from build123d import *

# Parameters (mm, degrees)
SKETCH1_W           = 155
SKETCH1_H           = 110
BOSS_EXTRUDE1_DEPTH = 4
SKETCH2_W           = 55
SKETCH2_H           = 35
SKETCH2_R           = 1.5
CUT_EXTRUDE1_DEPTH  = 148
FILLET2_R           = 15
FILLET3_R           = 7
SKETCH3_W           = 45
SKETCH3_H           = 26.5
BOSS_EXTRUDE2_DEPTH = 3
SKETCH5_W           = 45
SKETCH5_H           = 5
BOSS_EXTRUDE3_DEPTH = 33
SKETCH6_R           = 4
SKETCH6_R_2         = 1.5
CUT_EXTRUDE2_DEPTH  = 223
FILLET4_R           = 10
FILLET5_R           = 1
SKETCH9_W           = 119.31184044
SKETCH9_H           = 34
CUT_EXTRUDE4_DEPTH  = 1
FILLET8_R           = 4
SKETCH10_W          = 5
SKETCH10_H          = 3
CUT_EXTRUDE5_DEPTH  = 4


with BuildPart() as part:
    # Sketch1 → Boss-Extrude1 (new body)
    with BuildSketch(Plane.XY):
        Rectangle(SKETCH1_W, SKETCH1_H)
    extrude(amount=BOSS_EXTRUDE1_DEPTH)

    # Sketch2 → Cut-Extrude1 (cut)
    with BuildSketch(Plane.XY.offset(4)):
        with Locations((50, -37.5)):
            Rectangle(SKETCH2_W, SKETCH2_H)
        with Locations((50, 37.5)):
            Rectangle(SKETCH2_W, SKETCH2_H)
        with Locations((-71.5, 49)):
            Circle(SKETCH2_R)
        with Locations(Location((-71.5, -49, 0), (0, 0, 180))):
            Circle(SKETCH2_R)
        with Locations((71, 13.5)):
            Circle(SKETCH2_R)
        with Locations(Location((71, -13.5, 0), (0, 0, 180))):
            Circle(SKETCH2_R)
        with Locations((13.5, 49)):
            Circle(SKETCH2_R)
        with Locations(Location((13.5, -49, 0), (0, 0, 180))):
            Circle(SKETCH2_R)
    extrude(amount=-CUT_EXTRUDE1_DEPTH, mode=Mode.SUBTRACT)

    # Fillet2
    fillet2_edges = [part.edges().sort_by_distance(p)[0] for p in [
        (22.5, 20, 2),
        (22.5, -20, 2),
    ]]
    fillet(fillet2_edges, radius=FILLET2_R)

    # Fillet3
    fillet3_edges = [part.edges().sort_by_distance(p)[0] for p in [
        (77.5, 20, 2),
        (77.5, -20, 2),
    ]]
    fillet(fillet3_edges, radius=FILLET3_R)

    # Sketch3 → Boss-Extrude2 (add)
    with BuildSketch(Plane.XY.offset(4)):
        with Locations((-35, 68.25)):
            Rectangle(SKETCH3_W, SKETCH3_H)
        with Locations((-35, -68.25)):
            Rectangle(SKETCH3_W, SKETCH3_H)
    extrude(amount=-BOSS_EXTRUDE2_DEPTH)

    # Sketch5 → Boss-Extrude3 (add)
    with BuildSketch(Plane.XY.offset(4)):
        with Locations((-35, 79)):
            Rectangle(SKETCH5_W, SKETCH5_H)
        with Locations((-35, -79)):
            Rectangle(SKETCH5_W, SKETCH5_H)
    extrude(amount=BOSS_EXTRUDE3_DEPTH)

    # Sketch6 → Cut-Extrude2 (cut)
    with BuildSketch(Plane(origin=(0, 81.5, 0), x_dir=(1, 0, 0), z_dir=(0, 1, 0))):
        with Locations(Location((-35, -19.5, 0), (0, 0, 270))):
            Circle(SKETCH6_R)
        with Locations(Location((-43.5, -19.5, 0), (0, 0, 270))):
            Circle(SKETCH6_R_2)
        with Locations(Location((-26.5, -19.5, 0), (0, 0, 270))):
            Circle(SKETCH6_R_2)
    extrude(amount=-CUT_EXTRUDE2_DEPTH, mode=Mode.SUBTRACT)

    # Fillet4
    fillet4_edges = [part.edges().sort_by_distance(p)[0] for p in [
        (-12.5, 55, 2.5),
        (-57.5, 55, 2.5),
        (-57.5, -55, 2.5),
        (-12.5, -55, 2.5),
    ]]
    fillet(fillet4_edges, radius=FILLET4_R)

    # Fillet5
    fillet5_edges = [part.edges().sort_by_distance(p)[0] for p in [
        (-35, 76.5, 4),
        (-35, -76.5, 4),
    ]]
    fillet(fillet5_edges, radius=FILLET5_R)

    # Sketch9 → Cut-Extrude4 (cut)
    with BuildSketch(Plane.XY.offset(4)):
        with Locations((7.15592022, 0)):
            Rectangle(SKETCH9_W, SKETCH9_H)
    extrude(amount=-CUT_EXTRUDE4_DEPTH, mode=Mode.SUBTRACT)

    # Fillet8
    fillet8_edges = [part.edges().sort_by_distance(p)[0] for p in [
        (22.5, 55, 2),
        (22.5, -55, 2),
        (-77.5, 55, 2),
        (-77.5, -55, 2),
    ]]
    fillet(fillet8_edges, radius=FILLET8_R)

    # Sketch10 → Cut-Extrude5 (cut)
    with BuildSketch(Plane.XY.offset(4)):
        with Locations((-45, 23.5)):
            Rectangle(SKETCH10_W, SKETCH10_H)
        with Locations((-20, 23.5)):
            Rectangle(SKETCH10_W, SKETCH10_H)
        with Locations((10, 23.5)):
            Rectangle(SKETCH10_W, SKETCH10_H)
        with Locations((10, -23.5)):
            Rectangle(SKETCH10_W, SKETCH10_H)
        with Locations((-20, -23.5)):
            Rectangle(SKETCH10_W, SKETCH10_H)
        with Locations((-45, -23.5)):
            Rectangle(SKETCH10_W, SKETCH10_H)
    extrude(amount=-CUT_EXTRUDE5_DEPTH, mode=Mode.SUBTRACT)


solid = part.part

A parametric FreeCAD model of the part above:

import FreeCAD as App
import Part
import Sketcher

V = App.Vector


def edges_at(feature, points):
    """Names of the edges that pass closest to the given points."""
    edges = feature.Shape.Edges
    near = lambda p: min(range(len(edges)), key=lambda i: edges[i].distToShape(Part.Vertex(*p))[0])
    return sorted({f"Edge{near(p) + 1}" for p in points})

doc = App.newDocument("Part")
body = doc.addObject("PartDesign::Body", "Body")

# Sketch on XY plane
sketch1 = body.newObject("Sketcher::SketchObject", "Sketch")
sketch1.AttachmentSupport = (doc.getObject("XY_Plane"), [""])
sketch1.MapMode = "FlatFace"
sketch1.addGeometry(Part.LineSegment(V(-78, 55, 0), V(-78, -55, 0)), False)
sketch1.addGeometry(Part.LineSegment(V(-78, -55, 0), V(78, -55, 0)), False)
sketch1.addGeometry(Part.LineSegment(V(78, -55, 0), V(78, 55, 0)), False)
sketch1.addGeometry(Part.LineSegment(V(78, 55, 0), V(-78, 55, 0)), False)
sketch1.addConstraint(Sketcher.Constraint("Coincident", 0, 2, 1, 1))
sketch1.addConstraint(Sketcher.Constraint("Coincident", 1, 2, 2, 1))
sketch1.addConstraint(Sketcher.Constraint("Coincident", 2, 2, 3, 1))
sketch1.addConstraint(Sketcher.Constraint("Coincident", 3, 2, 0, 1))
sketch1.addConstraint(Sketcher.Constraint("Vertical", 0))
sketch1.addConstraint(Sketcher.Constraint("Horizontal", 1))
sketch1.addConstraint(Sketcher.Constraint("Vertical", 2))
sketch1.addConstraint(Sketcher.Constraint("Horizontal", 3))
sketch1.addConstraint(Sketcher.Constraint("Symmetric", 0, 2, 2, 2, -1, 1))
sketch1.addConstraint(Sketcher.Constraint("DistanceX", 1, 1, 1, 2, 155.0))
sketch1.addConstraint(Sketcher.Constraint("DistanceY", 0, 2, 0, 1, 110.0))
pad1 = body.newObject("PartDesign::Pad", "Pad")
pad1.Profile = sketch1
pad1.Length = 4

# Sketch on XY plane
sketch2 = body.newObject("Sketcher::SketchObject", "Sketch001")
sketch2.AttachmentSupport = (doc.getObject("XY_Plane"), [""])
sketch2.MapMode = "FlatFace"
sketch2.AttachmentOffset = App.Placement(V(0, 0, 4), App.Rotation())
sketch2.addGeometry(Part.LineSegment(V(22.5, -20, 0), V(22.5, -55, 0)), False)
sketch2.addGeometry(Part.LineSegment(V(22.5, -55, 0), V(77.5, -55, 0)), False)
sketch2.addGeometry(Part.LineSegment(V(77.5, -55, 0), V(77.5, -20, 0)), False)
sketch2.addGeometry(Part.LineSegment(V(77.5, -20, 0), V(22.5, -20, 0)), False)
sketch2.addGeometry(Part.LineSegment(V(22.5, 55, 0), V(22.5, 20, 0)), False)
sketch2.addGeometry(Part.LineSegment(V(22.5, 20, 0), V(77.5, 20, 0)), False)
sketch2.addGeometry(Part.LineSegment(V(77.5, 20, 0), V(77.5, 55, 0)), False)
sketch2.addGeometry(Part.LineSegment(V(77.5, 55, 0), V(22.5, 55, 0)), False)
sketch2.addGeometry(Part.Circle(V(-71.5, 49, 0), V(0, 0, 1), 1.5), False)
sketch2.addGeometry(Part.Circle(V(-71.5, -49, 0), V(0, 0, 1), 1.5), False)
sketch2.addGeometry(Part.Circle(V(71, 13.5, 0), V(0, 0, 1), 1.5), False)
sketch2.addGeometry(Part.Circle(V(71, -13.5, 0), V(0, 0, 1), 1.5), False)
sketch2.addGeometry(Part.Circle(V(13.5, 49, 0), V(0, 0, 1), 1.5), False)
sketch2.addGeometry(Part.Circle(V(13.5, -49, 0), V(0, 0, 1), 1.5), False)
sketch2.addConstraint(Sketcher.Constraint("Coincident", 0, 2, 1, 1))
sketch2.addConstraint(Sketcher.Constraint("Coincident", 1, 2, 2, 1))
sketch2.addConstraint(Sketcher.Constraint("Coincident", 2, 2, 3, 1))
sketch2.addConstraint(Sketcher.Constraint("Coincident", 3, 2, 0, 1))
sketch2.addConstraint(Sketcher.Constraint("Coincident", 4, 2, 5, 1))
sketch2.addConstraint(Sketcher.Constraint("Coincident", 5, 2, 6, 1))
sketch2.addConstraint(Sketcher.Constraint("Coincident", 6, 2, 7, 1))
sketch2.addConstraint(Sketcher.Constraint("Coincident", 7, 2, 4, 1))
sketch2.addConstraint(Sketcher.Constraint("Vertical", 0))
sketch2.addConstraint(Sketcher.Constraint("Horizontal", 1))
sketch2.addConstraint(Sketcher.Constraint("Vertical", 2))
sketch2.addConstraint(Sketcher.Constraint("Horizontal", 3))
sketch2.addConstraint(Sketcher.Constraint("Vertical", 4))
sketch2.addConstraint(Sketcher.Constraint("Horizontal", 5))
sketch2.addConstraint(Sketcher.Constraint("Vertical", 6))
sketch2.addConstraint(Sketcher.Constraint("Horizontal", 7))
sketch2.addConstraint(Sketcher.Constraint("Equal", 8, 9))
sketch2.addConstraint(Sketcher.Constraint("Equal", 9, 10))
sketch2.addConstraint(Sketcher.Constraint("Equal", 10, 11))
sketch2.addConstraint(Sketcher.Constraint("Equal", 11, 12))
sketch2.addConstraint(Sketcher.Constraint("Equal", 12, 13))
sketch2.addConstraint(Sketcher.Constraint("Symmetric", 8, 3, 9, 3, -1))
sketch2.addConstraint(Sketcher.Constraint("Symmetric", 10, 3, 11, 3, -1))
sketch2.addConstraint(Sketcher.Constraint("Symmetric", 12, 3, 13, 3, -1))
sketch2.addConstraint(Sketcher.Constraint("Symmetric", 3, 2, 4, 2, -1))
sketch2.addConstraint(Sketcher.Constraint("Symmetric", 1, 2, 6, 2, -1))
sketch2.addConstraint(Sketcher.Constraint("Horizontal", 8, 3, 12, 3))
sketch2.addConstraint(Sketcher.Constraint("Diameter", 8, 3.0))
sketch2.addConstraint(Sketcher.Constraint("DistanceX", 1, 1, 1, 2, 55.0))
sketch2.addConstraint(Sketcher.Constraint("DistanceY", 0, 2, 0, 1, 35.0))
sketch2.addConstraint(Sketcher.Constraint("DistanceY", -1, 1, 8, 3, 49.0))
sketch2.addConstraint(Sketcher.Constraint("DistanceX", -1, 1, 10, 3, 71.0))
sketch2.addConstraint(Sketcher.Constraint("DistanceY", 0, 2, -1, 1, 55.0))
sketch2.addConstraint(Sketcher.Constraint("DistanceY", 11, 3, 10, 3, 27.0))
sketch2.addConstraint(Sketcher.Constraint("DistanceX", 8, 3, 12, 3, 85.0))
sketch2.addConstraint(Sketcher.Constraint("DistanceX", 13, 3, 0, 2, 9.0))
sketch2.addConstraint(Sketcher.Constraint("DistanceX", 8, 3, -1, 1, 71.5))
pocket1 = body.newObject("PartDesign::Pocket", "Pocket")
pocket1.Profile = sketch2
pocket1.Length = 148
doc.recompute()

fillet = body.newObject("PartDesign::Fillet", "Fillet")
fillet.Base = (pocket1, edges_at(pocket1, [(22.5, 20, 2), (22.5, -20, 2)]))
fillet.Radius = 15
doc.recompute()

fillet2 = body.newObject("PartDesign::Fillet", "Fillet001")
fillet2.Base = (fillet, edges_at(fillet, [(77.5, 20, 2), (77.5, -20, 2)]))
fillet2.Radius = 7

# Sketch on XY plane
sketch3 = body.newObject("Sketcher::SketchObject", "Sketch002")
sketch3.AttachmentSupport = (doc.getObject("XY_Plane"), [""])
sketch3.MapMode = "FlatFace"
sketch3.AttachmentOffset = App.Placement(V(0, 0, 4), App.Rotation())
sketch3.addGeometry(Part.LineSegment(V(-58, 82, 0), V(-58, 55, 0)), False)
sketch3.addGeometry(Part.LineSegment(V(-58, 55, 0), V(-12, 55, 0)), False)
sketch3.addGeometry(Part.LineSegment(V(-12, 55, 0), V(-12, 82, 0)), False)
sketch3.addGeometry(Part.LineSegment(V(-12, 82, 0), V(-58, 82, 0)), False)
sketch3.addGeometry(Part.LineSegment(V(-58, -55, 0), V(-58, -82, 0)), False)
sketch3.addGeometry(Part.LineSegment(V(-58, -82, 0), V(-12, -82, 0)), False)
sketch3.addGeometry(Part.LineSegment(V(-12, -82, 0), V(-12, -55, 0)), False)
sketch3.addGeometry(Part.LineSegment(V(-12, -55, 0), V(-58, -55, 0)), False)
sketch3.addConstraint(Sketcher.Constraint("Coincident", 0, 2, 1, 1))
sketch3.addConstraint(Sketcher.Constraint("Coincident", 1, 2, 2, 1))
sketch3.addConstraint(Sketcher.Constraint("Coincident", 2, 2, 3, 1))
sketch3.addConstraint(Sketcher.Constraint("Coincident", 3, 2, 0, 1))
sketch3.addConstraint(Sketcher.Constraint("Coincident", 4, 2, 5, 1))
sketch3.addConstraint(Sketcher.Constraint("Coincident", 5, 2, 6, 1))
sketch3.addConstraint(Sketcher.Constraint("Coincident", 6, 2, 7, 1))
sketch3.addConstraint(Sketcher.Constraint("Coincident", 7, 2, 4, 1))
sketch3.addConstraint(Sketcher.Constraint("Vertical", 0))
sketch3.addConstraint(Sketcher.Constraint("Horizontal", 1))
sketch3.addConstraint(Sketcher.Constraint("Vertical", 2))
sketch3.addConstraint(Sketcher.Constraint("Horizontal", 3))
sketch3.addConstraint(Sketcher.Constraint("Vertical", 4))
sketch3.addConstraint(Sketcher.Constraint("Horizontal", 5))
sketch3.addConstraint(Sketcher.Constraint("Vertical", 6))
sketch3.addConstraint(Sketcher.Constraint("Horizontal", 7))
sketch3.addConstraint(Sketcher.Constraint("Symmetric", 3, 2, 4, 2, -1))
sketch3.addConstraint(Sketcher.Constraint("Symmetric", 1, 2, 6, 2, -1))
sketch3.addConstraint(Sketcher.Constraint("DistanceX", 1, 1, 1, 2, 45.0))
sketch3.addConstraint(Sketcher.Constraint("DistanceY", 0, 2, 0, 1, 26.5))
sketch3.addConstraint(Sketcher.Constraint("DistanceY", -1, 1, 0, 2, 55.0))
sketch3.addConstraint(Sketcher.Constraint("DistanceX", 0, 2, -1, 1, 57.5))
pad2 = body.newObject("PartDesign::Pad", "Pad001")
pad2.Profile = sketch3
pad2.Length = 3
pad2.Reversed = True

# Sketch on XY plane
sketch4 = body.newObject("Sketcher::SketchObject", "Sketch003")
sketch4.AttachmentSupport = (doc.getObject("XY_Plane"), [""])
sketch4.MapMode = "FlatFace"
sketch4.AttachmentOffset = App.Placement(V(0, 0, 4), App.Rotation())
sketch4.addGeometry(Part.LineSegment(V(-58, 82, 0), V(-58, 76, 0)), False)
sketch4.addGeometry(Part.LineSegment(V(-58, 76, 0), V(-12, 76, 0)), False)
sketch4.addGeometry(Part.LineSegment(V(-12, 76, 0), V(-12, 82, 0)), False)
sketch4.addGeometry(Part.LineSegment(V(-12, 82, 0), V(-58, 82, 0)), False)
sketch4.addGeometry(Part.LineSegment(V(-58, -76, 0), V(-58, -82, 0)), False)
sketch4.addGeometry(Part.LineSegment(V(-58, -82, 0), V(-12, -82, 0)), False)
sketch4.addGeometry(Part.LineSegment(V(-12, -82, 0), V(-12, -76, 0)), False)
sketch4.addGeometry(Part.LineSegment(V(-12, -76, 0), V(-58, -76, 0)), False)
sketch4.addConstraint(Sketcher.Constraint("Coincident", 0, 2, 1, 1))
sketch4.addConstraint(Sketcher.Constraint("Coincident", 1, 2, 2, 1))
sketch4.addConstraint(Sketcher.Constraint("Coincident", 2, 2, 3, 1))
sketch4.addConstraint(Sketcher.Constraint("Coincident", 3, 2, 0, 1))
sketch4.addConstraint(Sketcher.Constraint("Coincident", 4, 2, 5, 1))
sketch4.addConstraint(Sketcher.Constraint("Coincident", 5, 2, 6, 1))
sketch4.addConstraint(Sketcher.Constraint("Coincident", 6, 2, 7, 1))
sketch4.addConstraint(Sketcher.Constraint("Coincident", 7, 2, 4, 1))
sketch4.addConstraint(Sketcher.Constraint("Vertical", 0))
sketch4.addConstraint(Sketcher.Constraint("Horizontal", 1))
sketch4.addConstraint(Sketcher.Constraint("Vertical", 2))
sketch4.addConstraint(Sketcher.Constraint("Horizontal", 3))
sketch4.addConstraint(Sketcher.Constraint("Vertical", 4))
sketch4.addConstraint(Sketcher.Constraint("Horizontal", 5))
sketch4.addConstraint(Sketcher.Constraint("Vertical", 6))
sketch4.addConstraint(Sketcher.Constraint("Horizontal", 7))
sketch4.addConstraint(Sketcher.Constraint("Symmetric", 3, 2, 4, 2, -1))
sketch4.addConstraint(Sketcher.Constraint("Symmetric", 1, 2, 6, 2, -1))
sketch4.addConstraint(Sketcher.Constraint("DistanceX", 1, 1, 1, 2, 45.0))
sketch4.addConstraint(Sketcher.Constraint("DistanceY", 0, 2, 0, 1, 5.0))
sketch4.addConstraint(Sketcher.Constraint("DistanceY", 4, 2, 0, 2, 158.0))
sketch4.addConstraint(Sketcher.Constraint("DistanceX", 0, 2, -1, 1, 57.5))
pad3 = body.newObject("PartDesign::Pad", "Pad002")
pad3.Profile = sketch4
pad3.Length = 33

# Sketch on XZ plane
sketch5 = body.newObject("Sketcher::SketchObject", "Sketch004")
sketch5.AttachmentSupport = (doc.getObject("XZ_Plane"), [""])
sketch5.MapMode = "FlatFace"
sketch5.AttachmentOffset = App.Placement(V(0, 0, -81.5), App.Rotation())
sketch5.addGeometry(Part.Circle(V(-35, 19.5, 0), V(0, 0, 1), 4), False)
sketch5.addGeometry(Part.Circle(V(-43.5, 19.5, 0), V(0, 0, 1), 1.5), False)
sketch5.addGeometry(Part.Circle(V(-26.5, 19.5, 0), V(0, 0, 1), 1.5), False)
sketch5.addConstraint(Sketcher.Constraint("Equal", 1, 2))
sketch5.addConstraint(Sketcher.Constraint("Horizontal", 0, 3, 1, 3))
sketch5.addConstraint(Sketcher.Constraint("Horizontal", 1, 3, 2, 3))
sketch5.addConstraint(Sketcher.Constraint("Diameter", 0, 8.0))
sketch5.addConstraint(Sketcher.Constraint("Diameter", 1, 3.0))
sketch5.addConstraint(Sketcher.Constraint("DistanceX", 0, 3, -1, 1, 35.0))
sketch5.addConstraint(Sketcher.Constraint("DistanceX", 1, 3, 2, 3, 17.0))
sketch5.addConstraint(Sketcher.Constraint("DistanceY", -1, 1, 0, 3, 19.5))
sketch5.addConstraint(Sketcher.Constraint("DistanceX", 1, 3, -1, 1, 43.5))
pocket2 = body.newObject("PartDesign::Pocket", "Pocket001")
pocket2.Profile = sketch5
pocket2.Length = 223
pocket2.Reversed = True
doc.recompute()

fillet3 = body.newObject("PartDesign::Fillet", "Fillet002")
fillet3.Base = (pocket2, edges_at(pocket2, [
    (-12.5, 55, 2.5),
    (-57.5, 55, 2.5),
    (-57.5, -55, 2.5),
    (-12.5, -55, 2.5),
]))
fillet3.Radius = 10
doc.recompute()

fillet4 = body.newObject("PartDesign::Fillet", "Fillet003")
fillet4.Base = (fillet3, edges_at(fillet3, [(-35, 76.5, 4), (-35, -76.5, 4)]))
fillet4.Radius = 1

# Sketch on XY plane
sketch6 = body.newObject("Sketcher::SketchObject", "Sketch005")
sketch6.AttachmentSupport = (doc.getObject("XY_Plane"), [""])
sketch6.MapMode = "FlatFace"
sketch6.AttachmentOffset = App.Placement(V(0, 0, 4), App.Rotation())
sketch6.addGeometry(Part.LineSegment(V(-52, 17, 0), V(-52, -17, 0)), False)
sketch6.addGeometry(Part.LineSegment(V(-52, -17, 0), V(67, -17, 0)), False)
sketch6.addGeometry(Part.LineSegment(V(67, -17, 0), V(67, 17, 0)), False)
sketch6.addGeometry(Part.LineSegment(V(67, 17, 0), V(-52, 17, 0)), False)
sketch6.addConstraint(Sketcher.Constraint("Coincident", 0, 2, 1, 1))
sketch6.addConstraint(Sketcher.Constraint("Coincident", 1, 2, 2, 1))
sketch6.addConstraint(Sketcher.Constraint("Coincident", 2, 2, 3, 1))
sketch6.addConstraint(Sketcher.Constraint("Coincident", 3, 2, 0, 1))
sketch6.addConstraint(Sketcher.Constraint("Vertical", 0))
sketch6.addConstraint(Sketcher.Constraint("Horizontal", 1))
sketch6.addConstraint(Sketcher.Constraint("Vertical", 2))
sketch6.addConstraint(Sketcher.Constraint("Horizontal", 3))
sketch6.addConstraint(Sketcher.Constraint("DistanceY", 0, 2, 0, 1, 34.0))
sketch6.addConstraint(Sketcher.Constraint("DistanceY", 0, 2, -1, 1, 17.0))
sketch6.addConstraint(Sketcher.Constraint("DistanceX", 0, 2, -1, 1, 52.5))
sketch6.addConstraint(Sketcher.Constraint("DistanceX", 1, 1, 1, 2, 119.31184))
pocket3 = body.newObject("PartDesign::Pocket", "Pocket002")
pocket3.Profile = sketch6
pocket3.Length = 1
doc.recompute()

fillet5 = body.newObject("PartDesign::Fillet", "Fillet004")
fillet5.Base = (pocket3, edges_at(pocket3, [
    (22.5, 55, 2),
    (22.5, -55, 2),
    (-77.5, 55, 2),
    (-77.5, -55, 2),
]))
fillet5.Radius = 4

# Sketch on XY plane
sketch7 = body.newObject("Sketcher::SketchObject", "Sketch006")
sketch7.AttachmentSupport = (doc.getObject("XY_Plane"), [""])
sketch7.MapMode = "FlatFace"
sketch7.AttachmentOffset = App.Placement(V(0, 0, 4), App.Rotation())
sketch7.addGeometry(Part.LineSegment(V(-47.5, 25, 0), V(-47.5, 22, 0)), False)
sketch7.addGeometry(Part.LineSegment(V(-47.5, 22, 0), V(-42.5, 22, 0)), False)
sketch7.addGeometry(Part.LineSegment(V(-42.5, 22, 0), V(-42.5, 25, 0)), False)
sketch7.addGeometry(Part.LineSegment(V(-42.5, 25, 0), V(-47.5, 25, 0)), False)
sketch7.addGeometry(Part.LineSegment(V(-22.5, 25, 0), V(-22.5, 22, 0)), False)
sketch7.addGeometry(Part.LineSegment(V(-22.5, 22, 0), V(-17.5, 22, 0)), False)
sketch7.addGeometry(Part.LineSegment(V(-17.5, 22, 0), V(-17.5, 25, 0)), False)
sketch7.addGeometry(Part.LineSegment(V(-17.5, 25, 0), V(-22.5, 25, 0)), False)
sketch7.addGeometry(Part.LineSegment(V(7.5, 25, 0), V(7.5, 22, 0)), False)
sketch7.addGeometry(Part.LineSegment(V(7.5, 22, 0), V(12.5, 22, 0)), False)
sketch7.addGeometry(Part.LineSegment(V(12.5, 22, 0), V(12.5, 25, 0)), False)
sketch7.addGeometry(Part.LineSegment(V(12.5, 25, 0), V(7.5, 25, 0)), False)
sketch7.addGeometry(Part.LineSegment(V(7.5, -22, 0), V(7.5, -25, 0)), False)
sketch7.addGeometry(Part.LineSegment(V(7.5, -25, 0), V(12.5, -25, 0)), False)
sketch7.addGeometry(Part.LineSegment(V(12.5, -25, 0), V(12.5, -22, 0)), False)
sketch7.addGeometry(Part.LineSegment(V(12.5, -22, 0), V(7.5, -22, 0)), False)
sketch7.addGeometry(Part.LineSegment(V(-22.5, -22, 0), V(-22.5, -25, 0)), False)
sketch7.addGeometry(Part.LineSegment(V(-22.5, -25, 0), V(-17.5, -25, 0)), False)
sketch7.addGeometry(Part.LineSegment(V(-17.5, -25, 0), V(-17.5, -22, 0)), False)
sketch7.addGeometry(Part.LineSegment(V(-17.5, -22, 0), V(-22.5, -22, 0)), False)
sketch7.addGeometry(Part.LineSegment(V(-47.5, -22, 0), V(-47.5, -25, 0)), False)
sketch7.addGeometry(Part.LineSegment(V(-47.5, -25, 0), V(-42.5, -25, 0)), False)
sketch7.addGeometry(Part.LineSegment(V(-42.5, -25, 0), V(-42.5, -22, 0)), False)
sketch7.addGeometry(Part.LineSegment(V(-42.5, -22, 0), V(-47.5, -22, 0)), False)
sketch7.addConstraint(Sketcher.Constraint("Coincident", 0, 2, 1, 1))
sketch7.addConstraint(Sketcher.Constraint("Coincident", 1, 2, 2, 1))
sketch7.addConstraint(Sketcher.Constraint("Coincident", 2, 2, 3, 1))
sketch7.addConstraint(Sketcher.Constraint("Coincident", 3, 2, 0, 1))
sketch7.addConstraint(Sketcher.Constraint("Coincident", 4, 2, 5, 1))
sketch7.addConstraint(Sketcher.Constraint("Coincident", 5, 2, 6, 1))
sketch7.addConstraint(Sketcher.Constraint("Coincident", 6, 2, 7, 1))
sketch7.addConstraint(Sketcher.Constraint("Coincident", 7, 2, 4, 1))
sketch7.addConstraint(Sketcher.Constraint("Coincident", 8, 2, 9, 1))
sketch7.addConstraint(Sketcher.Constraint("Coincident", 9, 2, 10, 1))
sketch7.addConstraint(Sketcher.Constraint("Coincident", 10, 2, 11, 1))
sketch7.addConstraint(Sketcher.Constraint("Coincident", 11, 2, 8, 1))
sketch7.addConstraint(Sketcher.Constraint("Coincident", 12, 2, 13, 1))
sketch7.addConstraint(Sketcher.Constraint("Coincident", 13, 2, 14, 1))
sketch7.addConstraint(Sketcher.Constraint("Coincident", 14, 2, 15, 1))
sketch7.addConstraint(Sketcher.Constraint("Coincident", 15, 2, 12, 1))
sketch7.addConstraint(Sketcher.Constraint("Coincident", 16, 2, 17, 1))
sketch7.addConstraint(Sketcher.Constraint("Coincident", 17, 2, 18, 1))
sketch7.addConstraint(Sketcher.Constraint("Coincident", 18, 2, 19, 1))
sketch7.addConstraint(Sketcher.Constraint("Coincident", 19, 2, 16, 1))
sketch7.addConstraint(Sketcher.Constraint("Coincident", 20, 2, 21, 1))
sketch7.addConstraint(Sketcher.Constraint("Coincident", 21, 2, 22, 1))
sketch7.addConstraint(Sketcher.Constraint("Coincident", 22, 2, 23, 1))
sketch7.addConstraint(Sketcher.Constraint("Coincident", 23, 2, 20, 1))
sketch7.addConstraint(Sketcher.Constraint("Vertical", 0))
sketch7.addConstraint(Sketcher.Constraint("Horizontal", 1))
sketch7.addConstraint(Sketcher.Constraint("Vertical", 2))
sketch7.addConstraint(Sketcher.Constraint("Horizontal", 3))
sketch7.addConstraint(Sketcher.Constraint("Vertical", 4))
sketch7.addConstraint(Sketcher.Constraint("Horizontal", 5))
sketch7.addConstraint(Sketcher.Constraint("Vertical", 6))
sketch7.addConstraint(Sketcher.Constraint("Horizontal", 7))
sketch7.addConstraint(Sketcher.Constraint("Vertical", 8))
sketch7.addConstraint(Sketcher.Constraint("Horizontal", 9))
sketch7.addConstraint(Sketcher.Constraint("Vertical", 10))
sketch7.addConstraint(Sketcher.Constraint("Horizontal", 11))
sketch7.addConstraint(Sketcher.Constraint("Vertical", 12))
sketch7.addConstraint(Sketcher.Constraint("Horizontal", 13))
sketch7.addConstraint(Sketcher.Constraint("Vertical", 14))
sketch7.addConstraint(Sketcher.Constraint("Horizontal", 15))
sketch7.addConstraint(Sketcher.Constraint("Vertical", 16))
sketch7.addConstraint(Sketcher.Constraint("Horizontal", 17))
sketch7.addConstraint(Sketcher.Constraint("Vertical", 18))
sketch7.addConstraint(Sketcher.Constraint("Horizontal", 19))
sketch7.addConstraint(Sketcher.Constraint("Vertical", 20))
sketch7.addConstraint(Sketcher.Constraint("Horizontal", 21))
sketch7.addConstraint(Sketcher.Constraint("Vertical", 22))
sketch7.addConstraint(Sketcher.Constraint("Horizontal", 23))
sketch7.addConstraint(Sketcher.Constraint("Symmetric", 11, 2, 12, 2, -1))
sketch7.addConstraint(Sketcher.Constraint("Symmetric", 9, 2, 14, 2, -1))
sketch7.addConstraint(Sketcher.Constraint("Symmetric", 7, 2, 16, 2, -1))
sketch7.addConstraint(Sketcher.Constraint("Symmetric", 5, 2, 18, 2, -1))
sketch7.addConstraint(Sketcher.Constraint("Symmetric", 3, 2, 20, 2, -1))
sketch7.addConstraint(Sketcher.Constraint("Symmetric", 1, 2, 22, 2, -1))
sketch7.addConstraint(Sketcher.Constraint("Horizontal", 1, 2, 4, 2))
sketch7.addConstraint(Sketcher.Constraint("Horizontal", 3, 2, 6, 2))
sketch7.addConstraint(Sketcher.Constraint("Horizontal", 5, 2, 8, 2))
sketch7.addConstraint(Sketcher.Constraint("Horizontal", 7, 2, 10, 2))
sketch7.addConstraint(Sketcher.Constraint("Equal", 3, 5))
sketch7.addConstraint(Sketcher.Constraint("Equal", 7, 9))
sketch7.addConstraint(Sketcher.Constraint("DistanceX", 1, 1, 1, 2, 5.0))
sketch7.addConstraint(Sketcher.Constraint("DistanceY", 0, 2, 0, 1, 3.0))
sketch7.addConstraint(Sketcher.Constraint("DistanceY", -1, 1, 0, 2, 22.0))
sketch7.addConstraint(Sketcher.Constraint("DistanceX", 1, 2, 4, 2, 20.0))
sketch7.addConstraint(Sketcher.Constraint("DistanceX", 5, 2, 8, 2, 25.0))
sketch7.addConstraint(Sketcher.Constraint("DistanceX", 0, 2, -1, 1, 47.5))
pocket4 = body.newObject("PartDesign::Pocket", "Pocket003")
pocket4.Profile = sketch7
pocket4.Length = 4

doc.recompute()
